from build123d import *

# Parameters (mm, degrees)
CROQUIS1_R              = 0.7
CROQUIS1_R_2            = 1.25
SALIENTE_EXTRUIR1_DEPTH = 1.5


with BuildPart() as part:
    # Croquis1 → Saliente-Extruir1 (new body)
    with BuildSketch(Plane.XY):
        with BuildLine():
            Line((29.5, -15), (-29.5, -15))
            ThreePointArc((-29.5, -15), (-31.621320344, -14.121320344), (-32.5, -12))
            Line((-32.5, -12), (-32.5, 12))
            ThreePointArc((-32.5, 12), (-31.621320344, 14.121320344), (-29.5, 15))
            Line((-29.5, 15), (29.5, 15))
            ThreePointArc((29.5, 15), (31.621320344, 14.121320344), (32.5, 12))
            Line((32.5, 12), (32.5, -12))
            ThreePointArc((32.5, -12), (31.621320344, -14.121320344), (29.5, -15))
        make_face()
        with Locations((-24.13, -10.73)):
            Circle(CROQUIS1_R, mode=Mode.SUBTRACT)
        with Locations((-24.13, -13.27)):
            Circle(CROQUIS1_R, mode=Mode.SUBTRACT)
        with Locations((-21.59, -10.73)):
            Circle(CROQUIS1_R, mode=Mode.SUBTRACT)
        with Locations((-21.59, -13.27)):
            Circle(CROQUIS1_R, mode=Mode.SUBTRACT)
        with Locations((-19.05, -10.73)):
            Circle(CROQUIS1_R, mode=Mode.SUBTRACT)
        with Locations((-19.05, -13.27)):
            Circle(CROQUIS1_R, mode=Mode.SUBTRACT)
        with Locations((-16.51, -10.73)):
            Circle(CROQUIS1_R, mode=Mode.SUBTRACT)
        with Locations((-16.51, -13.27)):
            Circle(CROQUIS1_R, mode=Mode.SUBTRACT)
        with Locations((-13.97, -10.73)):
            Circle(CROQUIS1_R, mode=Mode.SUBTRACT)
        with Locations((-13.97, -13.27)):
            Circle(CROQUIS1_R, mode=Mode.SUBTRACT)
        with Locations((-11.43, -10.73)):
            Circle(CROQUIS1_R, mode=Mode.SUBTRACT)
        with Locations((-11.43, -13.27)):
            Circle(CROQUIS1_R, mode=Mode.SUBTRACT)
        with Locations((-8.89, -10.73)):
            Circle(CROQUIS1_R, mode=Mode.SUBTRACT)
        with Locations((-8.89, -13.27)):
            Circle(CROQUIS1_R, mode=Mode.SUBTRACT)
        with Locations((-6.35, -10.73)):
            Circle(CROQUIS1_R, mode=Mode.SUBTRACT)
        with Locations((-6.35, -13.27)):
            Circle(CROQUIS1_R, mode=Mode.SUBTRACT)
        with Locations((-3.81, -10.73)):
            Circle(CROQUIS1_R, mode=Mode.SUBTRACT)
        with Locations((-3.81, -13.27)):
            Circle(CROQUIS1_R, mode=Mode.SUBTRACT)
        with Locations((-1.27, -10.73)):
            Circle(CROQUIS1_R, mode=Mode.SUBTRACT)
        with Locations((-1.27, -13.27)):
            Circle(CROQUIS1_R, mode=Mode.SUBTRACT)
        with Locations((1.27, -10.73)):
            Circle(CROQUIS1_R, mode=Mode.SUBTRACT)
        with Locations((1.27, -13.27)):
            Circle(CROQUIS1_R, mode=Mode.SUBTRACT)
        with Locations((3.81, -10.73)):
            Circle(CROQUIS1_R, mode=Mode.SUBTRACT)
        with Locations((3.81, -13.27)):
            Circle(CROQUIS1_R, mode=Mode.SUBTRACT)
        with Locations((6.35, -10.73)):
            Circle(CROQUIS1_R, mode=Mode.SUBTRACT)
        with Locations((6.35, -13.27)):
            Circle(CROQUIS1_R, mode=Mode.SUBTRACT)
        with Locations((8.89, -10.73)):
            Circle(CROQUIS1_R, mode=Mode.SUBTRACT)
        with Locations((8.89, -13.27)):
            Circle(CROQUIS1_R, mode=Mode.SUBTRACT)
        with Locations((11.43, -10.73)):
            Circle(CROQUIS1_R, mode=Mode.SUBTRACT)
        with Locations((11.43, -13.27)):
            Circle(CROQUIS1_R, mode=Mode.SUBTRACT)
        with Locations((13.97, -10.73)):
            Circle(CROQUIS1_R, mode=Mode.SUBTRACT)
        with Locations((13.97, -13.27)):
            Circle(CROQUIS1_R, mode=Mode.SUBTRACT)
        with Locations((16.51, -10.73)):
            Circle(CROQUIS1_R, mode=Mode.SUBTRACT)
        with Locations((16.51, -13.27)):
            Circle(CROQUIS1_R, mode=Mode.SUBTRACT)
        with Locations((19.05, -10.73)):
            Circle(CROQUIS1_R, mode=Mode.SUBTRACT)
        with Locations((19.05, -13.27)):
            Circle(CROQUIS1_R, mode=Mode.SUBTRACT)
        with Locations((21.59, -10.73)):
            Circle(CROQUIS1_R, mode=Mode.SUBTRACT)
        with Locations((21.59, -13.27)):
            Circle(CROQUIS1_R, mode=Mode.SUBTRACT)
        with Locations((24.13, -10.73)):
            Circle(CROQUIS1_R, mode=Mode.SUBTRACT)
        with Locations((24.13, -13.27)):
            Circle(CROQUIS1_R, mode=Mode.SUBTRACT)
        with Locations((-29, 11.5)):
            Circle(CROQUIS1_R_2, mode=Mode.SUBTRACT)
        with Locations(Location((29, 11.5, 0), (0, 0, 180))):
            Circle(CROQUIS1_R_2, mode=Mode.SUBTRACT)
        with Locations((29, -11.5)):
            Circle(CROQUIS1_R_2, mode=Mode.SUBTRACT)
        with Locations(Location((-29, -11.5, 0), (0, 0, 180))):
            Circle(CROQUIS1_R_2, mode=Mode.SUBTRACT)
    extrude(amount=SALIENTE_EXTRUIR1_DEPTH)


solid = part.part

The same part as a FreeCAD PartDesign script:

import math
import FreeCAD as App
import Part
import Sketcher
from FreeCAD import Vector
Q = App.Units.Quantity

doc = App.newDocument("Part")
body = doc.addObject("PartDesign::Body", "Body")

sketch1 = doc.addObject("Sketcher::SketchObject", "Sketch")
body.addObject(sketch1)
sketch1.AttachmentSupport = (doc.XY_Plane, [""])
sketch1.MapMode = "FlatFace"
sketch1.addGeometry([
    Part.LineSegment(Vector(-29.5, -15, 0), Vector(29.5, -15, 0)),
    Part.ArcOfCircle(Part.Circle(Vector(29.5, -12, 0), Vector(0, 0, 1), 3), math.radians(-90), math.radians(0)),
    Part.LineSegment(Vector(32.5, -12, 0), Vector(32.5, 12, 0)),
    Part.ArcOfCircle(Part.Circle(Vector(29.5, 12, 0), Vector(0, 0, 1), 3), math.radians(0), math.radians(90)),
    Part.LineSegment(Vector(29.5, 15, 0), Vector(-29.5, 15, 0)),
    Part.ArcOfCircle(Part.Circle(Vector(-29.5, 12, 0), Vector(0, 0, 1), 3), math.radians(90), math.radians(180)),
    Part.LineSegment(Vector(-32.5, 12, 0), Vector(-32.5, -12, 0)),
    Part.ArcOfCircle(Part.Circle(Vector(-29.5, -12, 0), Vector(0, 0, 1), 3), math.radians(180), math.radians(270)),
    Part.Circle(Vector(24.1, -13.3, 0), Vector(0, 0, 1), 0.7),
    Part.Circle(Vector(29, -11.5, 0), Vector(0, 0, 1), 1.2),
    Part.Circle(Vector(24.1, -10.7, 0), Vector(0, 0, 1), 0.7),
    Part.Circle(Vector(21.6, -13.3, 0), Vector(0, 0, 1), 0.7),
    Part.Circle(Vector(19.1, -13.3, 0), Vector(0, 0, 1), 0.7),
    Part.Circle(Vector(16.5, -13.3, 0), Vector(0, 0, 1), 0.7),
    Part.Circle(Vector(21.6, -10.7, 0), Vector(0, 0, 1), 0.7),
    Part.Circle(Vector(19.1, -10.7, 0), Vector(0, 0, 1), 0.7),
    Part.Circle(Vector(16.5, -10.7, 0), Vector(0, 0, 1), 0.7),
    Part.Circle(Vector(14, -13.3, 0), Vector(0, 0, 1), 0.7),
    Part.Circle(Vector(11.4, -13.3, 0), Vector(0, 0, 1), 0.7),
    Part.Circle(Vector(8.9, -13.3, 0), Vector(0, 0, 1), 0.7),
    Part.Circle(Vector(14, -10.7, 0), Vector(0, 0, 1), 0.7),
    Part.Circle(Vector(11.4, -10.7, 0), Vector(0, 0, 1), 0.7),
    Part.Circle(Vector(8.9, -10.7, 0), Vector(0, 0, 1), 0.7),
    Part.Circle(Vector(6.3, -13.3, 0), Vector(0, 0, 1), 0.7),
    Part.Circle(Vector(3.8, -13.3, 0), Vector(0, 0, 1), 0.7),
    Part.Circle(Vector(1.3, -13.3, 0), Vector(0, 0, 1), 0.7),
    Part.Circle(Vector(6.3, -10.7, 0), Vector(0, 0, 1), 0.7),
    Part.Circle(Vector(3.8, -10.7, 0), Vector(0, 0, 1), 0.7),
    Part.Circle(Vector(1.3, -10.7, 0), Vector(0, 0, 1), 0.7),
    Part.Circle(Vector(-1.3, -13.3, 0), Vector(0, 0, 1), 0.7),
    Part.Circle(Vector(-3.8, -13.3, 0), Vector(0, 0, 1), 0.7),
    Part.Circle(Vector(-6.3, -13.3, 0), Vector(0, 0, 1), 0.7),
    Part.Circle(Vector(-1.3, -10.7, 0), Vector(0, 0, 1), 0.7),
    Part.Circle(Vector(-3.8, -10.7, 0), Vector(0, 0, 1), 0.7),
    Part.Circle(Vector(-6.3, -10.7, 0), Vector(0, 0, 1), 0.7),
    Part.Circle(Vector(-8.9, -13.3, 0), Vector(0, 0, 1), 0.7),
    Part.Circle(Vector(-11.4, -13.3, 0), Vector(0, 0, 1), 0.7),
    Part.Circle(Vector(-14, -13.3, 0), Vector(0, 0, 1), 0.7),
    Part.Circle(Vector(-8.9, -10.7, 0), Vector(0, 0, 1), 0.7),
    Part.Circle(Vector(-11.4, -10.7, 0), Vector(0, 0, 1), 0.7),
    Part.Circle(Vector(-14, -10.7, 0), Vector(0, 0, 1), 0.7),
    Part.Circle(Vector(-16.5, -13.3, 0), Vector(0, 0, 1), 0.7),
    Part.Circle(Vector(-19.1, -13.3, 0), Vector(0, 0, 1), 0.7),
    Part.Circle(Vector(-21.6, -13.3, 0), Vector(0, 0, 1), 0.7),
    Part.Circle(Vector(-16.5, -10.7, 0), Vector(0, 0, 1), 0.7),
    Part.Circle(Vector(-19.1, -10.7, 0), Vector(0, 0, 1), 0.7),
    Part.Circle(Vector(-21.6, -10.7, 0), Vector(0, 0, 1), 0.7),
    Part.Circle(Vector(-24.1, -13.3, 0), Vector(0, 0, 1), 0.7),
    Part.Circle(Vector(-24.1, -10.7, 0), Vector(0, 0, 1), 0.7),
    Part.Circle(Vector(-29, -11.5, 0), Vector(0, 0, 1), 1.2),
    Part.Circle(Vector(29, 11.5, 0), Vector(0, 0, 1), 1.2),
    Part.Circle(Vector(-29, 11.5, 0), Vector(0, 0, 1), 1.2),
], False)
sketch1.addConstraint([
    Sketcher.Constraint("Tangent", 0, 2, 1, 1),
    Sketcher.Constraint("Tangent", 1, 2, 2, 1),
    Sketcher.Constraint("Tangent", 2, 2, 3, 1),
    Sketcher.Constraint("Tangent", 3, 2, 4, 1),
    Sketcher.Constraint("Tangent", 4, 2, 5, 1),
    Sketcher.Constraint("Tangent", 5, 2, 6, 1),
    Sketcher.Constraint("Tangent", 6, 2, 7, 1),
    Sketcher.Constraint("Tangent", 7, 2, 0, 1),
    Sketcher.Constraint("Horizontal", 0),
    Sketcher.Constraint("Vertical", 2),
    Sketcher.Constraint("Horizontal", 4),
    Sketcher.Constraint("Vertical", 6),
    Sketcher.Constraint("Equal", 1, 3),
    Sketcher.Constraint("Equal", 3, 5),
    Sketcher.Constraint("Equal", 5, 7),
    Sketcher.Constraint("Equal", 8, 10),
    Sketcher.Constraint("Equal", 10, 11),
    Sketcher.Constraint("Equal", 11, 12),
    Sketcher.Constraint("Equal", 12, 13),
    Sketcher.Constraint("Equal", 13, 14),
    Sketcher.Constraint("Equal", 14, 15),
    Sketcher.Constraint("Equal", 15, 16),
    Sketcher.Constraint("Equal", 16, 17),
    Sketcher.Constraint("Equal", 17, 18),
    Sketcher.Constraint("Equal", 18, 19),
    Sketcher.Constraint("Equal", 19, 20),
    Sketcher.Constraint("Equal", 20, 21),
    Sketcher.Constraint("Equal", 21, 22),
    Sketcher.Constraint("Equal", 22, 23),
    Sketcher.Constraint("Equal", 23, 24),
    Sketcher.Constraint("Equal", 24, 25),
    Sketcher.Constraint("Equal", 25, 26),
    Sketcher.Constraint("Equal", 26, 27),
    Sketcher.Constraint("Equal", 27, 28),
    Sketcher.Constraint("Equal", 28, 29),
    Sketcher.Constraint("Equal", 29, 30),
    Sketcher.Constraint("Equal", 30, 31),
    Sketcher.Constraint("Equal", 31, 32),
    Sketcher.Constraint("Equal", 32, 33),
    Sketcher.Constraint("Equal", 33, 34),
    Sketcher.Constraint("Equal", 34, 35),
    Sketcher.Constraint("Equal", 35, 36),
    Sketcher.Constraint("Equal", 36, 37),
    Sketcher.Constraint("Equal", 37, 38),
    Sketcher.Constraint("Equal", 38, 39),
    Sketcher.Constraint("Equal", 39, 40),
    Sketcher.Constraint("Equal", 40, 41),
    Sketcher.Constraint("Equal", 41, 42),
    Sketcher.Constraint("Equal", 42, 43),
    Sketcher.Constraint("Equal", 43, 44),
    Sketcher.Constraint("Equal", 44, 45),
    Sketcher.Constraint("Equal", 45, 46),
    Sketcher.Constraint("Equal", 46, 47),
    Sketcher.Constraint("Equal", 47, 48),
    Sketcher.Constraint("Equal", 9, 49),
    Sketcher.Constraint("Equal", 49, 50),
    Sketcher.Constraint("Equal", 50, 51),
    Sketcher.Constraint("Symmetric", 1, 3, 5, 3, -1, 1),
    Sketcher.Constraint("Symmetric", 49, 3, 50, 3, -1, 1),
    Sketcher.Constraint("Symmetric", 9, 3, 51, 3, -1, 1),
    Sketcher.Constraint("Symmetric", 25, 3, 29, 3, -2),
    Sketcher.Constraint("Symmetric", 24, 3, 30, 3, -2),
    Sketcher.Constraint("Symmetric", 23, 3, 31, 3, -2),
    Sketcher.Constraint("Symmetric", 28, 3, 32, 3, -2),
    Sketcher.Constraint("Symmetric", 27, 3, 33, 3, -2),
    Sketcher.Constraint("Symmetric", 26, 3, 34, 3, -2),
    Sketcher.Constraint("Symmetric", 19, 3, 35, 3, -2),
    Sketcher.Constraint("Symmetric", 18, 3, 36, 3, -2),
    Sketcher.Constraint("Symmetric", 17, 3, 37, 3, -2),
    Sketcher.Constraint("Symmetric", 22, 3, 38, 3, -2),
    Sketcher.Constraint("Symmetric", 21, 3, 39, 3, -2),
    Sketcher.Constraint("Symmetric", 20, 3, 40, 3, -2),
    Sketcher.Constraint("Symmetric", 13, 3, 41, 3, -2),
    Sketcher.Constraint("Symmetric", 12, 3, 42, 3, -2),
    Sketcher.Constraint("Symmetric", 11, 3, 43, 3, -2),
    Sketcher.Constraint("Symmetric", 16, 3, 44, 3, -2),
    Sketcher.Constraint("Symmetric", 15, 3, 45, 3, -2),
    Sketcher.Constraint("Symmetric", 14, 3, 46, 3, -2),
    Sketcher.Constraint("Symmetric", 8, 3, 47, 3, -2),
    Sketcher.Constraint("Symmetric", 10, 3, 48, 3, -2),
    Sketcher.Constraint("Symmetric", 9, 3, 49, 3, -2),
    Sketcher.Constraint("Horizontal", 8, 3, 11, 3),
    Sketcher.Constraint("Horizontal", 11, 3, 12, 3),
    Sketcher.Constraint("Horizontal", 12, 3, 13, 3),
    Sketcher.Constraint("Horizontal", 10, 3, 14, 3),
    Sketcher.Constraint("Horizontal", 14, 3, 15, 3),
    Sketcher.Constraint("Horizontal", 15, 3, 16, 3),
    Sketcher.Constraint("Horizontal", 13, 3, 17, 3),
    Sketcher.Constraint("Horizontal", 17, 3, 18, 3),
    Sketcher.Constraint("Horizontal", 18, 3, 19, 3),
    Sketcher.Constraint("Horizontal", 16, 3, 20, 3),
    Sketcher.Constraint("Horizontal", 20, 3, 21, 3),
    Sketcher.Constraint("Horizontal", 21, 3, 22, 3),
    Sketcher.Constraint("Horizontal", 19, 3, 23, 3),
    Sketcher.Constraint("Horizontal", 23, 3, 24, 3),
    Sketcher.Constraint("Horizontal", 24, 3, 25, 3),
    Sketcher.Constraint("Horizontal", 22, 3, 26, 3),
    Sketcher.Constraint("Horizontal", 26, 3, 27, 3),
    Sketcher.Constraint("Horizontal", 27, 3, 28, 3),
    Sketcher.Constraint("Vertical", 8, 3, 10, 3),
    Sketcher.Constraint("Vertical", 11, 3, 14, 3),
    Sketcher.Constraint("Vertical", 12, 3, 15, 3),
    Sketcher.Constraint("Vertical", 13, 3, 16, 3),
    Sketcher.Constraint("Vertical", 17, 3, 20, 3),
    Sketcher.Constraint("Vertical", 18, 3, 21, 3),
    Sketcher.Constraint("Vertical", 19, 3, 22, 3),
    Sketcher.Constraint("Vertical", 23, 3, 26, 3),
    Sketcher.Constraint("Vertical", 24, 3, 27, 3),
    Sketcher.Constraint("Vertical", 25, 3, 28, 3),
    Sketcher.Constraint("Radius", 1, Q("3 mm")),
    Sketcher.Constraint("Diameter", 8, Q("1.4 mm")),
    Sketcher.Constraint("Diameter", 9, Q("2.5 mm")),
    Sketcher.Constraint("DistanceX", 0, 1, 0, 2, Q("59 mm")),
    Sketcher.Constraint("DistanceY", 2, 1, 2, 2, Q("24 mm")),
    Sketcher.Constraint("DistanceX", -1, 1, 9, 3, Q("29 mm")),
    Sketcher.Constraint("DistanceY", 9, 3, 50, 3, Q("23 mm")),
    Sketcher.Constraint("DistanceX", -1, 1, 8, 3, Q("24.13 mm")),
    Sketcher.Constraint("DistanceY", 8, 3, -1, 1, Q("13.27 mm")),
    Sketcher.Constraint("DistanceY", 10, 3, -1, 1, Q("10.73 mm")),
    Sketcher.Constraint("DistanceX", -1, 1, 11, 3, Q("21.59 mm")),
    Sketcher.Constraint("DistanceX", -1, 1, 12, 3, Q("19.05 mm")),
    Sketcher.Constraint("DistanceX", -1, 1, 13, 3, Q("16.51 mm")),
    Sketcher.Constraint("DistanceX", -1, 1, 17, 3, Q("13.97 mm")),
    Sketcher.Constraint("DistanceX", -1, 1, 18, 3, Q("11.43 mm")),
    Sketcher.Constraint("DistanceX", -1, 1, 19, 3, Q("8.89 mm")),
    Sketcher.Constraint("DistanceX", -1, 1, 23, 3, Q("6.35 mm")),
    Sketcher.Constraint("DistanceX", -1, 1, 24, 3, Q("3.81 mm")),
    Sketcher.Constraint("DistanceX", -1, 1, 25, 3, Q("1.27 mm")),
])
pad1 = doc.addObject("PartDesign::Pad", "Pad")
body.addObject(pad1)
pad1.Profile = sketch1
pad1.Length = 1.5

doc.recompute()
